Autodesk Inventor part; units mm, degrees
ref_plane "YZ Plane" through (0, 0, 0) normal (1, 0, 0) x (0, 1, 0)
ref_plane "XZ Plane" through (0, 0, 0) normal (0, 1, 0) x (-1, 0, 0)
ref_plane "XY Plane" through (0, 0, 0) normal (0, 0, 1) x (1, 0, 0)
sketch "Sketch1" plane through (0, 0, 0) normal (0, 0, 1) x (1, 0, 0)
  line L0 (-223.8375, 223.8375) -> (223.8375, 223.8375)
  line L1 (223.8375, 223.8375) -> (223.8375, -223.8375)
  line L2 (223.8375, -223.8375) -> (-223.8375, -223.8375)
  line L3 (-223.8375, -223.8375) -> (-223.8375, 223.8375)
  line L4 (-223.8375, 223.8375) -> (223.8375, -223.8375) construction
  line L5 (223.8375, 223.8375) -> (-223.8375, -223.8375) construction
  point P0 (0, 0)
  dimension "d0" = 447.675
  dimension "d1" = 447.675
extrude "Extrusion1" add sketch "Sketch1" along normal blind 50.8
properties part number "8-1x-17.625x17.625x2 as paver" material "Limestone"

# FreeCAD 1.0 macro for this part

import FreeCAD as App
import Part
import Sketcher
from FreeCAD import Vector
Q = App.Units.Quantity


def add_polygon(sketch, points):
    """Adds a closed chain of lines whose ends are joined by coincident constraints."""
    first, n = sketch.GeometryCount, len(points)
    for a, b in zip(points, points[1:] + points[:1]):
        sketch.addGeometry(Part.LineSegment(App.Vector(*a, 0), App.Vector(*b, 0)), False)
    for i in range(n):
        sketch.addConstraint(Sketcher.Constraint("Coincident", first + i, 2, first + (i + 1) % n, 1))

doc = App.newDocument("Part")
body = doc.addObject("PartDesign::Body", "Body")

# Sketch on XY plane
sketch1 = body.newObject("Sketcher::SketchObject", "Sketch")
sketch1.AttachmentSupport = (doc.getObject("XY_Plane"), [""])
sketch1.MapMode = "FlatFace"
add_polygon(sketch1, [(223.8375, 223.8375), (-223.8375, 223.8375), (-223.8375, -223.8375), (223.8375, -223.8375)])  # lines 0-3
sketch1.addConstraint([
    Sketcher.Constraint("Horizontal", 0),
    Sketcher.Constraint("Vertical", 1),
    Sketcher.Constraint("Horizontal", 2),
    Sketcher.Constraint("Vertical", 3),
    Sketcher.Constraint("Symmetric", 0, 2, 2, 2, -1, 1),
    Sketcher.Constraint("Equal", 2, 1),
    Sketcher.Constraint("DistanceX", 0, 2, 0, 1, Q("17.625 in")),
])
pad1 = body.newObject("PartDesign::Pad", "Pad")
pad1.Profile = sketch1
pad1.Length = Q("2 in")

doc.recompute()
